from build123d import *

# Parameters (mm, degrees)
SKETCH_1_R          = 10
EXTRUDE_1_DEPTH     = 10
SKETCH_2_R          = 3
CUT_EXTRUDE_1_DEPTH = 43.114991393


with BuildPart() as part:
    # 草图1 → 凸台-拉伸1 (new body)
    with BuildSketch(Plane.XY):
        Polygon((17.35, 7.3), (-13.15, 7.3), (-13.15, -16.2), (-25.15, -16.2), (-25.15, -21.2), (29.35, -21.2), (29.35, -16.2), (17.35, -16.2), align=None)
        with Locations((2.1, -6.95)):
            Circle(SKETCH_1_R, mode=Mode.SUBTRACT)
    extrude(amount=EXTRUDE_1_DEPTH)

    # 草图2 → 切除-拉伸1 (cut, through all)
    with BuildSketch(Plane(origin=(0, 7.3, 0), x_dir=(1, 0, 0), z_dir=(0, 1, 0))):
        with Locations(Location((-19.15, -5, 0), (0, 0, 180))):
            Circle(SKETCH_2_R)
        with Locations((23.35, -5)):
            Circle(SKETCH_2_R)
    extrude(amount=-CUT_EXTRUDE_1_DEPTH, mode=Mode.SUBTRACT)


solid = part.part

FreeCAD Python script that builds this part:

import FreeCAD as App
import Part
import Sketcher
from FreeCAD import Vector

doc = App.newDocument("Part")
params = doc.addObject("Spreadsheet::Sheet", "Params")
for row, (alias, value) in enumerate([
    ("sketch1_diameter", "20 mm"),
    ("sketch1_width", "12 mm"),
    ("sketch1_height", "5 mm"),
    ("sketch1_width2", "30.5 mm"),
    ("sketch1_height2", "23.5 mm"),
    ("pad1_length", "10 mm"),
    ("sketch2_diameter", "6 mm"),
], start=1):
    params.set(f"A{row}", alias)
    params.set(f"B{row}", "=" + value)
    params.setAlias(f"B{row}", alias)

body = doc.addObject("PartDesign::Body", "Body")

# Sketch on XY plane
sketch1 = doc.addObject("Sketcher::SketchObject", "Sketch")
body.addObject(sketch1)
sketch1.AttachmentSupport = (doc.XY_Plane, [""])
sketch1.MapMode = "FlatFace"
sketch1.addGeometry(Part.LineSegment(Vector(17, 7, 0), Vector(-13, 7, 0)), False)
sketch1.addGeometry(Part.LineSegment(Vector(-13, 7, 0), Vector(-13, -16, 0)), False)
sketch1.addGeometry(Part.LineSegment(Vector(-13, -16, 0), Vector(-25, -16, 0)), False)
sketch1.addGeometry(Part.LineSegment(Vector(-25, -16, 0), Vector(-25, -21, 0)), False)
sketch1.addGeometry(Part.LineSegment(Vector(-25, -21, 0), Vector(29, -21, 0)), False)
sketch1.addGeometry(Part.LineSegment(Vector(29, -21, 0), Vector(29, -16, 0)), False)
sketch1.addGeometry(Part.LineSegment(Vector(29, -16, 0), Vector(17, -16, 0)), False)
sketch1.addGeometry(Part.LineSegment(Vector(17, -16, 0), Vector(17, 7, 0)), False)
sketch1.addGeometry(Part.Circle(Vector(2, -7, 0), Vector(0, 0, 1), 10), False)
sketch1.addConstraint(Sketcher.Constraint("Coincident", 0, 2, 1, 1))
sketch1.addConstraint(Sketcher.Constraint("Coincident", 1, 2, 2, 1))
sketch1.addConstraint(Sketcher.Constraint("Coincident", 2, 2, 3, 1))
sketch1.addConstraint(Sketcher.Constraint("Coincident", 3, 2, 4, 1))
sketch1.addConstraint(Sketcher.Constraint("Coincident", 4, 2, 5, 1))
sketch1.addConstraint(Sketcher.Constraint("Coincident", 5, 2, 6, 1))
sketch1.addConstraint(Sketcher.Constraint("Coincident", 6, 2, 7, 1))
sketch1.addConstraint(Sketcher.Constraint("Coincident", 7, 2, 0, 1))
sketch1.addConstraint(Sketcher.Constraint("Horizontal", 0))
sketch1.addConstraint(Sketcher.Constraint("Vertical", 1))
sketch1.addConstraint(Sketcher.Constraint("Horizontal", 2))
sketch1.addConstraint(Sketcher.Constraint("Vertical", 3))
sketch1.addConstraint(Sketcher.Constraint("Horizontal", 4))
sketch1.addConstraint(Sketcher.Constraint("Vertical", 5))
sketch1.addConstraint(Sketcher.Constraint("Horizontal", 6))
sketch1.addConstraint(Sketcher.Constraint("Vertical", 7))
sketch1.addConstraint(Sketcher.Constraint("Horizontal", 2, 2, 5, 2))
sketch1.addConstraint(Sketcher.Constraint("Equal", 2, 6))
sketch1.addConstraint(Sketcher.Constraint("Diameter", 8, 20.0))
sketch1.addConstraint(Sketcher.Constraint("DistanceX", 2, 2, 2, 1, 12.0))
sketch1.addConstraint(Sketcher.Constraint("DistanceY", 3, 2, 3, 1, 5.0))
sketch1.addConstraint(Sketcher.Constraint("DistanceX", 0, 2, 0, 1, 30.5))
sketch1.addConstraint(Sketcher.Constraint("DistanceY", 1, 2, 1, 1, 23.5))
sketch1.addConstraint(Sketcher.Constraint("DistanceX", -1, 1, 8, 3, 2.1))
sketch1.addConstraint(Sketcher.Constraint("DistanceY", -1, 1, 0, 2, 7.3))
sketch1.addConstraint(Sketcher.Constraint("DistanceY", 8, 3, -1, 1, 6.95))
sketch1.addConstraint(Sketcher.Constraint("DistanceX", 0, 2, -1, 1, 13.15))
sketch1.setExpression("Constraints[18]", "Params.sketch1_diameter")
sketch1.setExpression("Constraints[19]", "Params.sketch1_width")
sketch1.setExpression("Constraints[20]", "Params.sketch1_height")
sketch1.setExpression("Constraints[21]", "Params.sketch1_width2")
sketch1.setExpression("Constraints[22]", "Params.sketch1_height2")
pad1 = doc.addObject("PartDesign::Pad", "Pad")
body.addObject(pad1)
pad1.Profile = sketch1
pad1.setExpression("Length", "Params.pad1_length")

# Sketch on XZ plane
sketch2 = doc.addObject("Sketcher::SketchObject", "Sketch001")
body.addObject(sketch2)
sketch2.AttachmentSupport = (doc.XZ_Plane, [""])
sketch2.MapMode = "FlatFace"
sketch2.AttachmentOffset = App.Placement(Vector(0, 0, -7.3), App.Rotation())
sketch2.addGeometry(Part.Circle(Vector(-19.1, 5, 0), Vector(0, 0, 1), 3), False)
sketch2.addGeometry(Part.Circle(Vector(23.4, 5, 0), Vector(0, 0, 1), 3), False)
sketch2.addConstraint(Sketcher.Constraint("Equal", 0, 1))
sketch2.addConstraint(Sketcher.Constraint("Horizontal", 0, 3, 1, 3))
sketch2.addConstraint(Sketcher.Constraint("Diameter", 0, 6.0))
sketch2.addConstraint(Sketcher.Constraint("DistanceY", -1, 1, 0, 3, 5.0))
sketch2.addConstraint(Sketcher.Constraint("DistanceX", 0, 3, 1, 3, 42.5))
sketch2.addConstraint(Sketcher.Constraint("DistanceX", 0, 3, -1, 1, 19.15))
sketch2.setExpression("Constraints[2]", "Params.sketch2_diameter")
pocket1 = doc.addObject("PartDesign::Pocket", "Pocket")
body.addObject(pocket1)
pocket1.Profile = sketch2
pocket1.Type = "ThroughAll"
pocket1.Reversed = True

doc.recompute()
